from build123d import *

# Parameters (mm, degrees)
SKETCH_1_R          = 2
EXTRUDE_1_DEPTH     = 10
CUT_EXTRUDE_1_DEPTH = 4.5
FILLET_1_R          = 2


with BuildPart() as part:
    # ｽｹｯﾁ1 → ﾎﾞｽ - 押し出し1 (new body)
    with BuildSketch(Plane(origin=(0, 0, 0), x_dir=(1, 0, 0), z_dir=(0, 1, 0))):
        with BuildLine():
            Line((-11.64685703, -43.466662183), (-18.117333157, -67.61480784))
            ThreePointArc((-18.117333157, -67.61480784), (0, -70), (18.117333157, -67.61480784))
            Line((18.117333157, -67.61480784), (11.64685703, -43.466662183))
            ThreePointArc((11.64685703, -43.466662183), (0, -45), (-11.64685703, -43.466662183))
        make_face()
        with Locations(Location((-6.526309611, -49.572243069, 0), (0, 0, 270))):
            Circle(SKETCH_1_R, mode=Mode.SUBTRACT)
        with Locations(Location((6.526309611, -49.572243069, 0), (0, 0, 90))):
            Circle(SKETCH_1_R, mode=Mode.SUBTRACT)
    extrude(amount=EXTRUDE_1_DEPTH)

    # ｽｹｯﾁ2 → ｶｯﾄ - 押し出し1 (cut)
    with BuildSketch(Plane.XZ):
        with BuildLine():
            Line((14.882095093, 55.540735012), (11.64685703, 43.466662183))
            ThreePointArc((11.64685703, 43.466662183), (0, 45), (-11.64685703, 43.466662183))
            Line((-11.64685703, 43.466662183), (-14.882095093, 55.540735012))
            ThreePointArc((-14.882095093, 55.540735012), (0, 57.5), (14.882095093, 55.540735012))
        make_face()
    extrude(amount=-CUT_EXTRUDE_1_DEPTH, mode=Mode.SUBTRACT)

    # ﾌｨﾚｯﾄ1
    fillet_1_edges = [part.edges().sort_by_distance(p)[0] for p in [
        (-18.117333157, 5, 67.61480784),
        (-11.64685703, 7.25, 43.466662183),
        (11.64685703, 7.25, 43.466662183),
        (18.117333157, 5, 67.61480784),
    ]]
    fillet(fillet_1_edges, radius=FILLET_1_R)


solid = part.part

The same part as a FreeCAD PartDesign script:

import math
import FreeCAD as App
import Part
import Sketcher
from FreeCAD import Vector
Q = App.Units.Quantity


def edges_at(feature, points):
    """Names of the edges that pass closest to the given points."""
    edges = feature.Shape.Edges
    near = lambda p: min(range(len(edges)), key=lambda i: edges[i].distToShape(Part.Vertex(*p))[0])
    return sorted({f"Edge{near(p) + 1}" for p in points})

doc = App.newDocument("Part")
body = doc.addObject("PartDesign::Body", "Body")

sketch1 = doc.addObject("Sketcher::SketchObject", "Sketch")
body.addObject(sketch1)
sketch1.AttachmentSupport = (doc.XZ_Plane, [""])
sketch1.MapMode = "FlatFace"
sketch1.addGeometry([
    Part.LineSegment(Vector(-11.6, 43.5, 0), Vector(-18.1, 67.6, 0)),
    Part.ArcOfCircle(Part.Circle(Vector(0, 0, 0), Vector(0, 0, 1), 70), math.radians(75), math.radians(105)),
    Part.LineSegment(Vector(18.1, 67.6, 0), Vector(11.6, 43.5, 0)),
    Part.ArcOfCircle(Part.Circle(Vector(0, 0, 0), Vector(0, 0, 1), 45), math.radians(75), math.radians(105)),
    Part.Circle(Vector(-6.5, 49.6, 0), Vector(0, 0, 1), 2),
    Part.Circle(Vector(6.5, 49.6, 0), Vector(0, 0, 1), 2),
], False)
sketch1.addConstraint([
    Sketcher.Constraint("Coincident", 0, 2, 1, 2),
    Sketcher.Constraint("Coincident", 1, 1, 2, 1),
    Sketcher.Constraint("Coincident", 2, 2, 3, 1),
    Sketcher.Constraint("Coincident", 3, 2, 0, 1),
    Sketcher.Constraint("Coincident", 1, 3, -1, 1),
    Sketcher.Constraint("Coincident", 3, 3, -1, 1),
    Sketcher.Constraint("Equal", 4, 5),
    Sketcher.Constraint("Symmetric", 4, 3, 5, 3, -2),
    Sketcher.Constraint("Horizontal", 0, 2, 1, 1),
    Sketcher.Constraint("Horizontal", 2, 2, 3, 2),
    Sketcher.Constraint("Diameter", 4, 4.0),
    Sketcher.Constraint("Radius", 1, 70.0),
    Sketcher.Constraint("Radius", 3, 45.0),
    Sketcher.Constraint("Angle", 0, Q("105 deg")),
    Sketcher.Constraint("DistanceX", 4, 3, -1, 1, 6.52631),
    Sketcher.Constraint("DistanceY", 2, 2, 5, 3, 6.105581),
    Sketcher.Constraint("DistanceX", 0, 2, 2, 2, 29.76419),
])
pad1 = doc.addObject("PartDesign::Pad", "Pad")
body.addObject(pad1)
pad1.Profile = sketch1
pad1.Length = 10
pad1.Reversed = True

sketch2 = doc.addObject("Sketcher::SketchObject", "Sketch001")
body.addObject(sketch2)
sketch2.AttachmentSupport = (doc.XZ_Plane, [""])
sketch2.MapMode = "FlatFace"
sketch2.addGeometry([
    Part.LineSegment(Vector(12, 43, 0), Vector(15, 56, 0)),
    Part.ArcOfCircle(Part.Circle(Vector(0, 0, 0), Vector(0, 0, 1), 58), math.radians(75), math.radians(105)),
    Part.LineSegment(Vector(-15, 56, 0), Vector(-12, 43, 0)),
    Part.ArcOfCircle(Part.Circle(Vector(0, 0, 0), Vector(0, 0, 1), 45), math.radians(75), math.radians(105)),
], False)
sketch2.addConstraint([
    Sketcher.Constraint("Coincident", 0, 2, 1, 1),
    Sketcher.Constraint("Coincident", 1, 2, 2, 1),
    Sketcher.Constraint("Coincident", 2, 2, 3, 2),
    Sketcher.Constraint("Coincident", 3, 1, 0, 1),
    Sketcher.Constraint("Coincident", 1, 3, -1, 1),
    Sketcher.Constraint("Coincident", 3, 3, -1, 1),
    Sketcher.Constraint("Horizontal", 0, 2, 1, 2),
    Sketcher.Constraint("Horizontal", 2, 2, 3, 1),
    Sketcher.Constraint("Radius", 3, 45.0),
    Sketcher.Constraint("Radius", 1, 57.5),
    Sketcher.Constraint("Angle", 0, Q("75 deg")),
    Sketcher.Constraint("DistanceX", 1, 2, 0, 2, 29.76419),
])
pocket1 = doc.addObject("PartDesign::Pocket", "Pocket")
body.addObject(pocket1)
pocket1.Profile = sketch2
pocket1.Length = 4.5
doc.recompute()

fillet = doc.addObject("PartDesign::Fillet", "Fillet")
body.addObject(fillet)
fillet.Base = (pocket1, edges_at(pocket1, [
    (-18.117, 5, 67.615),
    (-11.647, 7.25, 43.467),
    (11.647, 7.25, 43.467),
    (18.117, 5, 67.615),
]))
fillet.Radius = 2

doc.recompute()
